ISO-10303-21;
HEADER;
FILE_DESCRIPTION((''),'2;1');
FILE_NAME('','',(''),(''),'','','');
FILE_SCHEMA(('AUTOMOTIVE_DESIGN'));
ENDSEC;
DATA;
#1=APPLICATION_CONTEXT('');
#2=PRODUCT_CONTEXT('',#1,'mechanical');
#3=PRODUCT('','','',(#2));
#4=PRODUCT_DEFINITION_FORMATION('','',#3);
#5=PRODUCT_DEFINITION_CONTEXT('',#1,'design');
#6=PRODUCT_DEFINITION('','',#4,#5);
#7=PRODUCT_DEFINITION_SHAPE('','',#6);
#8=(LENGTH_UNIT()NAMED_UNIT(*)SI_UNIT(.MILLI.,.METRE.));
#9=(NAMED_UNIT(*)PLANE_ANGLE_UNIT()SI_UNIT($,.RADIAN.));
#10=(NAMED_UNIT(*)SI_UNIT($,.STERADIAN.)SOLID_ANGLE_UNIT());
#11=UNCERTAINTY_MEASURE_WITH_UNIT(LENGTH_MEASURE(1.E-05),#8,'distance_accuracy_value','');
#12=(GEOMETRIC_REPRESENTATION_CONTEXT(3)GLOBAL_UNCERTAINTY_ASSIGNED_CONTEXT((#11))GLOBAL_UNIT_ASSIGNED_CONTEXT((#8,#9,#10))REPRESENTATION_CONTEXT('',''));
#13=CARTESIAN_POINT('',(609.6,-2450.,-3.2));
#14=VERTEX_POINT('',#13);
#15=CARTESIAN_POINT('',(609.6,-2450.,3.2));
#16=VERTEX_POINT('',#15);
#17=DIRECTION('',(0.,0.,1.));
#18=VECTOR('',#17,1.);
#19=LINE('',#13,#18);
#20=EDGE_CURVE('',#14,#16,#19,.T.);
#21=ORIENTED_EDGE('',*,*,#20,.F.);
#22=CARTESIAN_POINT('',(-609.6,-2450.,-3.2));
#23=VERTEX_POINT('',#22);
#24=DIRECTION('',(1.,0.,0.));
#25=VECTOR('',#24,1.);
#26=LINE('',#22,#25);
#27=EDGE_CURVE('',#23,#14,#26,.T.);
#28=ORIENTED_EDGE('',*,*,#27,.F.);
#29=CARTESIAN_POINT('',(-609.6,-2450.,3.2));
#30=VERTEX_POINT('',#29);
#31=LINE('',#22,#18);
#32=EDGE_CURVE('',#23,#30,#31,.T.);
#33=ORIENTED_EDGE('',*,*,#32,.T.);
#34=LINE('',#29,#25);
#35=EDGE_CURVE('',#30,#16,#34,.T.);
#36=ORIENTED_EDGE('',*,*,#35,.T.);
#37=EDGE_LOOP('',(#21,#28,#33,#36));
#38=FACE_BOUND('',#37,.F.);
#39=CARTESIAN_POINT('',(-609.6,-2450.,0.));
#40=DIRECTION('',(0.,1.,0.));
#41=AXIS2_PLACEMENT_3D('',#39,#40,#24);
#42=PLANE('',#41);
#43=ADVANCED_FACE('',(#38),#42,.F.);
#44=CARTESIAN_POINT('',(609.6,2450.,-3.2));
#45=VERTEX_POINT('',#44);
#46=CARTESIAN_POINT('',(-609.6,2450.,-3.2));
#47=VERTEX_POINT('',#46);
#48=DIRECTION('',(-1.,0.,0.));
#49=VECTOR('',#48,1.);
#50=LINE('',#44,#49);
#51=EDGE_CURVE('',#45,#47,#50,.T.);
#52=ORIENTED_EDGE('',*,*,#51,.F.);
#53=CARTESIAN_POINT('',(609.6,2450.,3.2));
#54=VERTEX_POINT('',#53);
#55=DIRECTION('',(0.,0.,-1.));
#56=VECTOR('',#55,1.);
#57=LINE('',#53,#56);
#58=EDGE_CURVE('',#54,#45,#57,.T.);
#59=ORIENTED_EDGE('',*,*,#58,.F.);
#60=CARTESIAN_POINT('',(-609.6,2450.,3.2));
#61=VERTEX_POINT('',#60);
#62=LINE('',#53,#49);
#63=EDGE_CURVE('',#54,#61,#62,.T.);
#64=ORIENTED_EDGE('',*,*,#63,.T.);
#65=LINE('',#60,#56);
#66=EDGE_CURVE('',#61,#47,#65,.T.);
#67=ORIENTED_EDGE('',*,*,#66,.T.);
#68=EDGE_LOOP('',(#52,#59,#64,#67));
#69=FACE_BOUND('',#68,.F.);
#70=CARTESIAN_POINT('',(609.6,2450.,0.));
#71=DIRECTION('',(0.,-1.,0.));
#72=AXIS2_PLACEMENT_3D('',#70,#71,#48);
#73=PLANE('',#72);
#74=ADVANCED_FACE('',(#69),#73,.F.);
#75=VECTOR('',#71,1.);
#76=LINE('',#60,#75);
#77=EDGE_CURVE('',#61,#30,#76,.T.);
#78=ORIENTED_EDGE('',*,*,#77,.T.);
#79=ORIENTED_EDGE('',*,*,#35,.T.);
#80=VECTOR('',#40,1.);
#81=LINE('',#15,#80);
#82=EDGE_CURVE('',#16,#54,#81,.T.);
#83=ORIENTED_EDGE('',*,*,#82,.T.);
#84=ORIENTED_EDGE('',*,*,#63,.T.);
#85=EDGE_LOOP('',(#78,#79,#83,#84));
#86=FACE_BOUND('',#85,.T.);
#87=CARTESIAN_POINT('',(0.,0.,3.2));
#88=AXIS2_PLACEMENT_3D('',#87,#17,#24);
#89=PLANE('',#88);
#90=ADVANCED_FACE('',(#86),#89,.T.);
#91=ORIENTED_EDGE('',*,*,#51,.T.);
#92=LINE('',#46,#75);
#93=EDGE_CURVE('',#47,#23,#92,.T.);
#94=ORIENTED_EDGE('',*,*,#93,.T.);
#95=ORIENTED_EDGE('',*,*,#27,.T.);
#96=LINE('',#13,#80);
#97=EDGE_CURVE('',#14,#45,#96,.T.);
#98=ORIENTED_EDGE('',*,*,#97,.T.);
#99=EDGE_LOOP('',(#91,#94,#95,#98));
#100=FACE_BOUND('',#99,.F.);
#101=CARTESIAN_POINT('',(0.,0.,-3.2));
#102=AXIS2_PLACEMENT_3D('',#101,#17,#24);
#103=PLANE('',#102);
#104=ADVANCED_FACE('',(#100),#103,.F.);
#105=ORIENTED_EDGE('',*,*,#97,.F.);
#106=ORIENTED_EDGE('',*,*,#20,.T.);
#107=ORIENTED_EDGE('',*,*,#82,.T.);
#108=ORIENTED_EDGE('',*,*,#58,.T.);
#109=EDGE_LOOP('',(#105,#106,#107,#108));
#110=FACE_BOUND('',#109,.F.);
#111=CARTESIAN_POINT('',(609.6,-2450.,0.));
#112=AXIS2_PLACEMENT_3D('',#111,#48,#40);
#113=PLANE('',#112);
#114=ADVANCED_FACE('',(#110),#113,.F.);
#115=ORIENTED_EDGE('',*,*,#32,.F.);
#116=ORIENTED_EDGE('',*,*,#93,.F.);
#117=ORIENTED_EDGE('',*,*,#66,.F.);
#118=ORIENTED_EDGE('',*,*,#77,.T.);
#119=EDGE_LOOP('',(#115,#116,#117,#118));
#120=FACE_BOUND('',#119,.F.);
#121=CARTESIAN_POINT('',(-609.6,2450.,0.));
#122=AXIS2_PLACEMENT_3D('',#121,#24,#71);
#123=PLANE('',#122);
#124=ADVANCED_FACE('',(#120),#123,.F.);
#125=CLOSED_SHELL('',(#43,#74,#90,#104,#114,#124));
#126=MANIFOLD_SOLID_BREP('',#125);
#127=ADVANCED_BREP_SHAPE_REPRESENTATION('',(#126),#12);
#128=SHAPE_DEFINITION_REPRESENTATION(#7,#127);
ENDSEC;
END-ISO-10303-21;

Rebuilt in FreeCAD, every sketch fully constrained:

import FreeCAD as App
import Part
import Sketcher
from FreeCAD import Vector


def add_polygon(sketch, points):
    """Adds a closed chain of lines whose ends are joined by coincident constraints."""
    first, n = sketch.GeometryCount, len(points)
    for a, b in zip(points, points[1:] + points[:1]):
        sketch.addGeometry(Part.LineSegment(App.Vector(*a, 0), App.Vector(*b, 0)), False)
    for i in range(n):
        sketch.addConstraint(Sketcher.Constraint("Coincident", first + i, 2, first + (i + 1) % n, 1))

doc = App.newDocument("Part")
body = doc.addObject("PartDesign::Body", "Body")

# Sketch on XY plane
sketch1 = body.newObject("Sketcher::SketchObject", "Sketch")
sketch1.AttachmentSupport = (doc.getObject("XY_Plane"), [""])
sketch1.MapMode = "FlatFace"
add_polygon(sketch1, [(-610, 2450), (-610, -2450), (610, -2450), (610, 2450)])  # lines 0-3
sketch1.addConstraint(Sketcher.Constraint("Vertical", 0))
sketch1.addConstraint(Sketcher.Constraint("Horizontal", 1))
sketch1.addConstraint(Sketcher.Constraint("Vertical", 2))
sketch1.addConstraint(Sketcher.Constraint("Horizontal", 3))
sketch1.addConstraint(Sketcher.Constraint("Symmetric", 0, 2, 2, 2, -1, 1))
sketch1.addConstraint(Sketcher.Constraint("DistanceY", 0, 2, 0, 1, 4900.0))
sketch1.addConstraint(Sketcher.Constraint("DistanceX", 1, 1, 1, 2, 1219.2))
pad1 = body.newObject("PartDesign::Pad", "Pad")
pad1.Profile = sketch1
pad1.Length = 6.4
pad1.Midplane = True

doc.recompute()
